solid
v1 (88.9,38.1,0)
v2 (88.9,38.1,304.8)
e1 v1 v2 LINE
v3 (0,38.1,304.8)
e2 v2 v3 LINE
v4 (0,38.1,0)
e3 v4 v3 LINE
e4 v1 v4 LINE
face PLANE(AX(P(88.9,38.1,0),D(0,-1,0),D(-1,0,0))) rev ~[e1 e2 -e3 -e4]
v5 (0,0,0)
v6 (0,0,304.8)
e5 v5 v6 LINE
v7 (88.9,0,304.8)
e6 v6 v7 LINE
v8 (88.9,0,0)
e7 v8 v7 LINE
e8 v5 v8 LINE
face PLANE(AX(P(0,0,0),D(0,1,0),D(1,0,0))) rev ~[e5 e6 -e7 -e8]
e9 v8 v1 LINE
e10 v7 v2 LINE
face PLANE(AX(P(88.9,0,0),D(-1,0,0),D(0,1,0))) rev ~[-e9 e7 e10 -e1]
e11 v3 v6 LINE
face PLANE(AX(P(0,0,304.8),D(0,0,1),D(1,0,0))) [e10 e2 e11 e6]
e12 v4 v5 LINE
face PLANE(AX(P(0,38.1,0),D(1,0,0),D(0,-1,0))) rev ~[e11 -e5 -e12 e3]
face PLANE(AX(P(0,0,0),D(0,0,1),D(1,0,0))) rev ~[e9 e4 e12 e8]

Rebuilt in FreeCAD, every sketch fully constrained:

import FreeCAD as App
import Part
import Sketcher
from FreeCAD import Vector
Q = App.Units.Quantity


def add_polygon(sketch, points):
    """Adds a closed chain of lines whose ends are joined by coincident constraints."""
    first, n = sketch.GeometryCount, len(points)
    for a, b in zip(points, points[1:] + points[:1]):
        sketch.addGeometry(Part.LineSegment(App.Vector(*a, 0), App.Vector(*b, 0)), False)
    for i in range(n):
        sketch.addConstraint(Sketcher.Constraint("Coincident", first + i, 2, first + (i + 1) % n, 1))

doc = App.newDocument("Part")
body = doc.addObject("PartDesign::Body", "Body")

# Sketch on XY plane
sketch1 = doc.addObject("Sketcher::SketchObject", "Sketch")
body.addObject(sketch1)
sketch1.AttachmentSupport = (doc.XY_Plane, [""])
sketch1.MapMode = "FlatFace"
add_polygon(sketch1, [(0, 38.1), (0, 0), (88.9, 0), (88.9, 38.1)])  # lines 0-3
sketch1.addConstraint([
    Sketcher.Constraint("Vertical", 0),
    Sketcher.Constraint("Horizontal", 1),
    Sketcher.Constraint("Vertical", 2),
    Sketcher.Constraint("Horizontal", 3),
    Sketcher.Constraint("Coincident", 0, 2, -1, 1),
    Sketcher.Constraint("DistanceX", 1, 1, 1, 2, Q("3.5 in")),
    Sketcher.Constraint("DistanceY", 0, 2, 0, 1, Q("1.5 in")),
])
pad1 = doc.addObject("PartDesign::Pad", "Pad")
body.addObject(pad1)
pad1.Profile = sketch1
pad1.Length = Q("12 in")

doc.recompute()
